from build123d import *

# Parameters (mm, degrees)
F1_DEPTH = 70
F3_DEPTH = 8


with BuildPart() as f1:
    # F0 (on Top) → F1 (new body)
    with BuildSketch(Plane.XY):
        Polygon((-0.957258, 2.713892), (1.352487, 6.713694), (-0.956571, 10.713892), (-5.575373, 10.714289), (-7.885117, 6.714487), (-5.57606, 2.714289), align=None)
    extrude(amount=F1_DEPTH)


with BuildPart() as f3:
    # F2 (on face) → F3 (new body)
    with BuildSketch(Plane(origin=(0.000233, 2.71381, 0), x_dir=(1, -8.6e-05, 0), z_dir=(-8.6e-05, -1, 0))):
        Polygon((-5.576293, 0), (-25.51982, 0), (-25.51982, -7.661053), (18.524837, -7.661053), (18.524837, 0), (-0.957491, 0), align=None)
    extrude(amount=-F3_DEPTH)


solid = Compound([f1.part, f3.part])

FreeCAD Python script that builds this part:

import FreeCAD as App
import Part
import Sketcher

V = App.Vector
Q = App.Units.Quantity


def add_polygon(sketch, points):
    """Adds a closed chain of lines whose ends are joined by coincident constraints."""
    first, n = sketch.GeometryCount, len(points)
    for a, b in zip(points, points[1:] + points[:1]):
        sketch.addGeometry(Part.LineSegment(App.Vector(*a, 0), App.Vector(*b, 0)), False)
    for i in range(n):
        sketch.addConstraint(Sketcher.Constraint("Coincident", first + i, 2, first + (i + 1) % n, 1))

doc = App.newDocument("Part")
body = doc.addObject("PartDesign::Body", "Body")

# Sketch on XY plane
sketch1 = doc.addObject("Sketcher::SketchObject", "Sketch")
body.addObject(sketch1)
sketch1.AttachmentSupport = (doc.XY_Plane, [""])
sketch1.MapMode = "FlatFace"
add_polygon(sketch1, [(-1, 2.7), (1.4, 6.7), (-1, 10.7), (-5.6, 10.7), (-7.9, 6.7), (-5.6, 2.7)])  # lines 0-5
sketch1.addConstraint(Sketcher.Constraint("Parallel", 0, 3))
sketch1.addConstraint(Sketcher.Constraint("Parallel", 1, 4))
sketch1.addConstraint(Sketcher.Constraint("Parallel", 2, 5))
sketch1.addConstraint(Sketcher.Constraint("Equal", 0, 1))
sketch1.addConstraint(Sketcher.Constraint("Equal", 1, 2))
sketch1.addConstraint(Sketcher.Constraint("Equal", 2, 3))
sketch1.addConstraint(Sketcher.Constraint("DistanceY", 4, 2, 2, 2, Q("8 mm")))
sketch1.addConstraint(Sketcher.Constraint("Distance", 4, Q("4.618802 mm")))
sketch1.addConstraint(Sketcher.Constraint("DistanceX", 1, 2, -1, 1, Q("0.956571 mm")))
sketch1.addConstraint(Sketcher.Constraint("DistanceY", -1, 1, 2, 2, Q("10.714289 mm")))
sketch1.addConstraint(Sketcher.Constraint("DistanceX", 4, 2, -1, 1, Q("5.57606 mm")))
sketch1.addConstraint(Sketcher.Constraint("DistanceY", -1, 1, 5, 2, Q("2.713892 mm")))
pad1 = doc.addObject("PartDesign::Pad", "Pad")
body.addObject(pad1)
pad1.Profile = sketch1
pad1.Length = 70
body2 = doc.addObject("PartDesign::Body", "Body001")

# Sketch on an angled plane
sketch2 = doc.addObject("Sketcher::SketchObject", "Sketch001")
body2.addObject(sketch2)
sketch2.Placement = App.Placement(V(0.000233, 2.71381, 0), App.Rotation(V(0.999999996, -0.000086, 0), V(0, 0, 0.999999999), V(-0.000086, -0.999999996, 0), "ZXY"))
add_polygon(sketch2, [(-26, 0), (-26, -8), (19, -8), (19, 0)])  # lines 0-3
sketch2.addConstraint(Sketcher.Constraint("Vertical", 0))
sketch2.addConstraint(Sketcher.Constraint("Horizontal", 1))
sketch2.addConstraint(Sketcher.Constraint("Vertical", 2))
sketch2.addConstraint(Sketcher.Constraint("Horizontal", 3))
sketch2.addConstraint(Sketcher.Constraint("PointOnObject", 2, 2, -1))
sketch2.addConstraint(Sketcher.Constraint("DistanceX", 1, 1, 1, 2, Q("44.044657 mm")))
sketch2.addConstraint(Sketcher.Constraint("DistanceY", 0, 2, 0, 1, Q("7.661053 mm")))
sketch2.addConstraint(Sketcher.Constraint("DistanceX", 0, 2, -1, 1, Q("25.51982 mm")))
pad2 = doc.addObject("PartDesign::Pad", "Pad001")
body2.addObject(pad2)
pad2.Profile = sketch2
pad2.Length = 8
pad2.Reversed = True

doc.recompute()
